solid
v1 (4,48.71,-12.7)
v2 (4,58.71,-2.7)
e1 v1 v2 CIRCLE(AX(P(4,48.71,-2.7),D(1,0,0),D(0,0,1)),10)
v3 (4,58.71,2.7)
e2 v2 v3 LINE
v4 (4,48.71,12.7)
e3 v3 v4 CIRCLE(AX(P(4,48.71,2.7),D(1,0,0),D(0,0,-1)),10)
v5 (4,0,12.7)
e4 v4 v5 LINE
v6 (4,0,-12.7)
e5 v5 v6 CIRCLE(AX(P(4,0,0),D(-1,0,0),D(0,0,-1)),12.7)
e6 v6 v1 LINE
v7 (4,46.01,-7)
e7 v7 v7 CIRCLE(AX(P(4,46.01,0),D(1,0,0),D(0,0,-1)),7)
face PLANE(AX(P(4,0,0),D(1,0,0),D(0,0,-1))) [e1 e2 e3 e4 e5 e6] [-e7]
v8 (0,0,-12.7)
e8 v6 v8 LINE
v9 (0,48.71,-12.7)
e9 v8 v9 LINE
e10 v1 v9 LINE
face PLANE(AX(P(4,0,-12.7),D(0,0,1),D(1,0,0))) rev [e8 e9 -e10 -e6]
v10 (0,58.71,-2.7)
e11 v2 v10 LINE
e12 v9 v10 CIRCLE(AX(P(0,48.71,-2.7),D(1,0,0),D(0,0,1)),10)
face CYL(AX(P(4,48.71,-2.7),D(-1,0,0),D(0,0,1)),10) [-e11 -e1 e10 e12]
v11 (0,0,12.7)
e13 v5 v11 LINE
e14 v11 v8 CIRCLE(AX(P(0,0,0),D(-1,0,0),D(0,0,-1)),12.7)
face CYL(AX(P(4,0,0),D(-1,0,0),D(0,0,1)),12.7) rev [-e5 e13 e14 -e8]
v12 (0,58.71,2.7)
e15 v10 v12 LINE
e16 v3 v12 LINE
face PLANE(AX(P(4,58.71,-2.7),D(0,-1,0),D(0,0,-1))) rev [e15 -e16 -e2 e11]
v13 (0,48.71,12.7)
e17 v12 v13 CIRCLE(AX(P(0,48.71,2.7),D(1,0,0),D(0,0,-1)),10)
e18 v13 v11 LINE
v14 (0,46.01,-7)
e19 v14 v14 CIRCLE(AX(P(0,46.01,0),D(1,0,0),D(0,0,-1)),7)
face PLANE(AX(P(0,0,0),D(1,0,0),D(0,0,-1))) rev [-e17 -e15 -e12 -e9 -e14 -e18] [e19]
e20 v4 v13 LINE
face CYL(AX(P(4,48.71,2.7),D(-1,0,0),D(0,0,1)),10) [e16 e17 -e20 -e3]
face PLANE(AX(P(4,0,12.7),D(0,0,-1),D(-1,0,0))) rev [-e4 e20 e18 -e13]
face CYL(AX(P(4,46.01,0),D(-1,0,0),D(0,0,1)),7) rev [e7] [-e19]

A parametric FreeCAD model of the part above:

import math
import FreeCAD as App
import Part
import Sketcher

V = App.Vector
Q = App.Units.Quantity

doc = App.newDocument("Part")
body = doc.addObject("PartDesign::Body", "Body")

# Sketch on YZ plane
sketch1 = body.newObject("Sketcher::SketchObject", "Sketch")
sketch1.AttachmentSupport = (doc.getObject("YZ_Plane"), [""])
sketch1.MapMode = "FlatFace"
sketch1.addGeometry([
    Part.LineSegment(V(49, 13, 0), V(0, 13, 0)),  # 0
    Part.ArcOfCircle(Part.Circle(V(0, 0, 0), V(0, 0, 1), 13), math.radians(-90), math.radians(90)),  # 1
    Part.LineSegment(V(0, -13, 0), V(49, -13, 0)),  # 2
    Part.ArcOfCircle(Part.Circle(V(49, -3, 0), V(0, 0, 1), 10), math.radians(-90), math.radians(0)),  # 3
    Part.LineSegment(V(59, -3, 0), V(59, 3, 0)),  # 4
    Part.ArcOfCircle(Part.Circle(V(49, 3, 0), V(0, 0, 1), 10), math.radians(0), math.radians(90)),  # 5
    Part.Circle(V(46, 0, 0), V(0, 0, 1), 7),  # 6
], False)
sketch1.addConstraint([
    Sketcher.Constraint("Tangent", 0, 2, 1, 2),
    Sketcher.Constraint("Tangent", 1, 1, 2, 1),
    Sketcher.Constraint("Tangent", 2, 2, 3, 1),
    Sketcher.Constraint("Tangent", 3, 2, 4, 1),
    Sketcher.Constraint("Tangent", 4, 2, 5, 1),
    Sketcher.Constraint("Tangent", 5, 2, 0, 1),
    Sketcher.Constraint("Horizontal", 0),
    Sketcher.Constraint("Horizontal", 2),
    Sketcher.Constraint("Vertical", 4),
    Sketcher.Constraint("Coincident", 1, 3, -1, 1),
    Sketcher.Constraint("Equal", 3, 5),
    Sketcher.Constraint("PointOnObject", 6, 3, -1),
    Sketcher.Constraint("Diameter", 6, Q("14 mm")),
    Sketcher.Constraint("Radius", 3, Q("10 mm")),
    Sketcher.Constraint("Radius", 1, Q("12.7 mm")),
    Sketcher.Constraint("DistanceX", 0, 2, 0, 1, Q("48.71 mm")),
    Sketcher.Constraint("DistanceX", 6, 3, 3, 3, Q("2.7 mm")),
])
pad1 = body.newObject("PartDesign::Pad", "Pad")
pad1.Profile = sketch1
pad1.Length = 4

doc.recompute()
